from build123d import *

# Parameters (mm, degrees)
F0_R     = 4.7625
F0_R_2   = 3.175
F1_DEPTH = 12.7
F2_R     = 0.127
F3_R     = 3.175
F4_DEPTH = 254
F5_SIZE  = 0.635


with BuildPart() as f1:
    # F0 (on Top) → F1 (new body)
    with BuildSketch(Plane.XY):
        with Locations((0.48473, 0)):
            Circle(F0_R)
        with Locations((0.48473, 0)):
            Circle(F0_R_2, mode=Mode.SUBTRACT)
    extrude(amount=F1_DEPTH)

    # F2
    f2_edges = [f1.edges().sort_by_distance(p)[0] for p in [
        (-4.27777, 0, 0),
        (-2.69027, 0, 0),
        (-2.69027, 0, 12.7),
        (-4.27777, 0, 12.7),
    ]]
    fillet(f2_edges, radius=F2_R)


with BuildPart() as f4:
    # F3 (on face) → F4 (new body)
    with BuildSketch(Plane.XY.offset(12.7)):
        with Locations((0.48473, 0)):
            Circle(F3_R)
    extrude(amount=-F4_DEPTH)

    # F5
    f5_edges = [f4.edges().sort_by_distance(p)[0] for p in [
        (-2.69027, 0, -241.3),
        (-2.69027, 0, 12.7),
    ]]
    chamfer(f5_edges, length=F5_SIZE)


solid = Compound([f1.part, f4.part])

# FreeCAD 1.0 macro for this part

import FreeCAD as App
import Part
import Sketcher
Q = App.Units.Quantity


def edges_at(feature, points):
    """Names of the edges that pass closest to the given points."""
    edges = feature.Shape.Edges
    near = lambda p: min(range(len(edges)), key=lambda i: edges[i].distToShape(Part.Vertex(*p))[0])
    return sorted({f"Edge{near(p) + 1}" for p in points})

doc = App.newDocument("Part")
params = doc.addObject("Spreadsheet::Sheet", "Params")
for row, (alias, value) in enumerate([
    ("sketch1_diameter", "0.25 in"),
    ("sketch1_diameter2", "0.375 in"),
    ("pad1_length", "0.5 in"),
    ("fillet_radius", "0.005 in"),
    ("sketch2_diameter", "0.25 in"),
    ("pad2_length", "10 in"),
    ("chamfer_size", "0.025 in"),
], start=1):
    params.set(f"A{row}", alias)
    params.set(f"B{row}", "=" + value)
    params.setAlias(f"B{row}", alias)

body = doc.addObject("PartDesign::Body", "Body")

# Sketch on XY plane
sketch1 = body.newObject("Sketcher::SketchObject", "Sketch")
sketch1.AttachmentSupport = (doc.getObject("XY_Plane"), [""])
sketch1.MapMode = "FlatFace"
sketch1.addGeometry(Part.Circle(App.Vector(0.5, 0, 0), App.Vector(0, 0, 1), 4.8), False)
sketch1.addGeometry(Part.Circle(App.Vector(0.5, 0, 0), App.Vector(0, 0, 1), 3.2), False)
sketch1.addConstraint(Sketcher.Constraint("Coincident", 1, 3, 0, 3))
sketch1.addConstraint(Sketcher.Constraint("PointOnObject", 0, 3, -1))
sketch1.addConstraint(Sketcher.Constraint("Diameter", 1, Q("0.25 in")))
sketch1.addConstraint(Sketcher.Constraint("Diameter", 0, Q("0.375 in")))
sketch1.addConstraint(Sketcher.Constraint("DistanceX", -1, 1, 0, 3, Q("0.48473 mm")))
sketch1.setExpression("Constraints[2]", "Params.sketch1_diameter")
sketch1.setExpression("Constraints[3]", "Params.sketch1_diameter2")
pad1 = body.newObject("PartDesign::Pad", "Pad")
pad1.Profile = sketch1
pad1.setExpression("Length", "Params.pad1_length")
doc.recompute()

fillet = body.newObject("PartDesign::Fillet", "Fillet")
fillet.Base = (pad1, edges_at(pad1, [
    (-4.278, 0, 0),
    (-2.69, 0, 0),
    (-2.69, 0, 12.7),
    (-4.278, 0, 12.7),
]))
fillet.setExpression("Radius", "Params.fillet_radius")
body2 = doc.addObject("PartDesign::Body", "Body001")

# Sketch on XY plane
sketch2 = body2.newObject("Sketcher::SketchObject", "Sketch001")
sketch2.AttachmentSupport = (doc.getObject("XY_Plane001"), [""])
sketch2.MapMode = "FlatFace"
sketch2.AttachmentOffset = App.Placement(App.Vector(0, 0, 0.5 * 25.4), App.Rotation())
sketch2.addGeometry(Part.Circle(App.Vector(0.5, 0, 0), App.Vector(0, 0, 1), 3.2), False)
sketch2.addConstraint(Sketcher.Constraint("PointOnObject", 0, 3, -1))
sketch2.addConstraint(Sketcher.Constraint("Diameter", 0, Q("0.25 in")))
sketch2.addConstraint(Sketcher.Constraint("DistanceX", -1, 1, 0, 3, Q("0.48473 mm")))
sketch2.setExpression("Constraints[1]", "Params.sketch2_diameter")
pad2 = body2.newObject("PartDesign::Pad", "Pad001")
pad2.Profile = sketch2
pad2.setExpression("Length", "Params.pad2_length")
pad2.Reversed = True
doc.recompute()

chamfer = body2.newObject("PartDesign::Chamfer", "Chamfer")
chamfer.Base = (pad2, edges_at(pad2, [(-2.69, 0, -241.3), (-2.69, 0, 12.7)]))
chamfer.setExpression("Size", "Params.chamfer_size")

doc.recompute()
